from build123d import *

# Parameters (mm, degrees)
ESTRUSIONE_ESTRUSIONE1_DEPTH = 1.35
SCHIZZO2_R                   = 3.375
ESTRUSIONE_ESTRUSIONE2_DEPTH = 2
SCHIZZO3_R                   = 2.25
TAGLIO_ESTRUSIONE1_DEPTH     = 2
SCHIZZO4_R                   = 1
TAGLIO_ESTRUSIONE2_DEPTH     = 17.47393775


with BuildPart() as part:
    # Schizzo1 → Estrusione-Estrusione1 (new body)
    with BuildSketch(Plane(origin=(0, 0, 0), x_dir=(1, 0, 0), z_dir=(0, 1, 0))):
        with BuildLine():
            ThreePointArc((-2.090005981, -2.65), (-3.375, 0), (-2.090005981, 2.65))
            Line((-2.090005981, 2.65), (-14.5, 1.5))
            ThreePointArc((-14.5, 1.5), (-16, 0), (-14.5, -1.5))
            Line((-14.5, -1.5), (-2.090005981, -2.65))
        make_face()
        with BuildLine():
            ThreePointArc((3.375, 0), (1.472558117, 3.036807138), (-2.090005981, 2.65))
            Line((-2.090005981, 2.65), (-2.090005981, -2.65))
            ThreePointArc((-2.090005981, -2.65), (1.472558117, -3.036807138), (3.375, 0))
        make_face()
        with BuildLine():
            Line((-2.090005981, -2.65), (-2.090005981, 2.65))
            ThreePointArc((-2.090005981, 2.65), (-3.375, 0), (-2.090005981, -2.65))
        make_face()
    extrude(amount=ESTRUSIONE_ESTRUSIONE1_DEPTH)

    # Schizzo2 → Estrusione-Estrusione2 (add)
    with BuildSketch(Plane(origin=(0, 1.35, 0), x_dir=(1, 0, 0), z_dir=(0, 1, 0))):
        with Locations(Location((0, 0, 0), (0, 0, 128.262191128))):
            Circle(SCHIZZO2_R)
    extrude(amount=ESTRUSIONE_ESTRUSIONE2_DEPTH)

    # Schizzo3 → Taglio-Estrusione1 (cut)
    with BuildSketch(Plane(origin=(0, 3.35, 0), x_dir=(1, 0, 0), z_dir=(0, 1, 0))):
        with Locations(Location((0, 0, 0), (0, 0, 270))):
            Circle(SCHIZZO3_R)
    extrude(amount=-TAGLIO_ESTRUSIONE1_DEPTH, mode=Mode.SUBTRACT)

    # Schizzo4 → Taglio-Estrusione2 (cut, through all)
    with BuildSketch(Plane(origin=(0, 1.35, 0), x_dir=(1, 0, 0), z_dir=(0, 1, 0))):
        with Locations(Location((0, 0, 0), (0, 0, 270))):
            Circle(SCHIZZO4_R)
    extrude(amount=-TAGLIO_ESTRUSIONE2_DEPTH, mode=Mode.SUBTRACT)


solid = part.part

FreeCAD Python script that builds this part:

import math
import FreeCAD as App
import Part
import Sketcher

doc = App.newDocument("Part")
body = doc.addObject("PartDesign::Body", "Body")

# Sketch on XZ plane
sketch1 = doc.addObject("Sketcher::SketchObject", "Sketch")
body.addObject(sketch1)
sketch1.AttachmentSupport = (doc.XZ_Plane, [""])
sketch1.MapMode = "FlatFace"
sketch1.addGeometry(Part.ArcOfCircle(Part.Circle(App.Vector(-14.5, 0, 0), App.Vector(0, 0, 1), 1.5), math.radians(90), math.radians(270)), False)
sketch1.addGeometry(Part.LineSegment(App.Vector(-14.5, 1.5, 0), App.Vector(-2.090006, 2.65, 0)), False)
sketch1.addGeometry(Part.ArcOfCircle(Part.Circle(App.Vector(0, 0, 0), App.Vector(0, 0, 1), 3.375), math.radians(0), math.radians(128.262191)), False)
sketch1.addGeometry(Part.ArcOfCircle(Part.Circle(App.Vector(0, 0, 0), App.Vector(0, 0, 1), 3.375), math.radians(-128.262191), math.radians(0)), False)
sketch1.addGeometry(Part.LineSegment(App.Vector(-2.090006, -2.65, 0), App.Vector(-14.5, -1.5, 0)), False)
sketch1.addConstraint(Sketcher.Constraint("Coincident", 0, 1, 1, 1))
sketch1.addConstraint(Sketcher.Constraint("Coincident", 1, 2, 2, 2))
sketch1.addConstraint(Sketcher.Constraint("Tangent", 2, 1, 3, 2))
sketch1.addConstraint(Sketcher.Constraint("Coincident", 3, 1, 4, 1))
sketch1.addConstraint(Sketcher.Constraint("Coincident", 4, 2, 0, 2))
sketch1.addConstraint(Sketcher.Constraint("Coincident", 2, 3, -1, 1))
sketch1.addConstraint(Sketcher.Constraint("Equal", 2, 3))
sketch1.addConstraint(Sketcher.Constraint("Symmetric", 0, 1, 4, 2, -1))
sketch1.addConstraint(Sketcher.Constraint("PointOnObject", 2, 1, -1))
sketch1.addConstraint(Sketcher.Constraint("Vertical", 1, 2, 3, 1))
sketch1.addConstraint(Sketcher.Constraint("Radius", 0, 1.5))
sketch1.addConstraint(Sketcher.Constraint("Radius", 2, 3.375))
sketch1.addConstraint(Sketcher.Constraint("DistanceX", 0, 3, -1, 1, 14.5))
sketch1.addConstraint(Sketcher.Constraint("DistanceX", 0, 1, -1, 1, 14.5))
sketch1.addConstraint(Sketcher.Constraint("DistanceY", 3, 1, 1, 2, 5.3))
pad1 = doc.addObject("PartDesign::Pad", "Pad")
body.addObject(pad1)
pad1.Profile = sketch1
pad1.Length = 1.35
pad1.Reversed = True

# Sketch on XZ plane
sketch2 = doc.addObject("Sketcher::SketchObject", "Sketch001")
body.addObject(sketch2)
sketch2.AttachmentSupport = (doc.XZ_Plane, [""])
sketch2.MapMode = "FlatFace"
sketch2.AttachmentOffset = App.Placement(App.Vector(0, 0, -1.35), App.Rotation())
sketch2.addGeometry(Part.Circle(App.Vector(0, 0, 0), App.Vector(0, 0, 1), 3.375), False)
sketch2.addConstraint(Sketcher.Constraint("Coincident", 0, 3, -1, 1))
sketch2.addConstraint(Sketcher.Constraint("Diameter", 0, 6.75))
pad2 = doc.addObject("PartDesign::Pad", "Pad001")
body.addObject(pad2)
pad2.Profile = sketch2
pad2.Length = 2
pad2.Reversed = True

# Sketch on XZ plane
sketch3 = doc.addObject("Sketcher::SketchObject", "Sketch002")
body.addObject(sketch3)
sketch3.AttachmentSupport = (doc.XZ_Plane, [""])
sketch3.MapMode = "FlatFace"
sketch3.AttachmentOffset = App.Placement(App.Vector(0, 0, -3.35), App.Rotation())
sketch3.addGeometry(Part.Circle(App.Vector(0, 0, 0), App.Vector(0, 0, 1), 2.25), False)
sketch3.addConstraint(Sketcher.Constraint("Coincident", 0, 3, -1, 1))
sketch3.addConstraint(Sketcher.Constraint("Diameter", 0, 4.5))
pocket1 = doc.addObject("PartDesign::Pocket", "Pocket")
body.addObject(pocket1)
pocket1.Profile = sketch3
pocket1.Length = 2
pocket1.Reversed = True

# Sketch on XZ plane
sketch4 = doc.addObject("Sketcher::SketchObject", "Sketch003")
body.addObject(sketch4)
sketch4.AttachmentSupport = (doc.XZ_Plane, [""])
sketch4.MapMode = "FlatFace"
sketch4.AttachmentOffset = App.Placement(App.Vector(0, 0, -1.35), App.Rotation())
sketch4.addGeometry(Part.Circle(App.Vector(0, 0, 0), App.Vector(0, 0, 1), 1), False)
sketch4.addConstraint(Sketcher.Constraint("Coincident", 0, 3, -1, 1))
sketch4.addConstraint(Sketcher.Constraint("Diameter", 0, 2.0))
pocket2 = doc.addObject("PartDesign::Pocket", "Pocket001")
body.addObject(pocket2)
pocket2.Profile = sketch4
pocket2.Type = "ThroughAll"
pocket2.Reversed = True

doc.recompute()
